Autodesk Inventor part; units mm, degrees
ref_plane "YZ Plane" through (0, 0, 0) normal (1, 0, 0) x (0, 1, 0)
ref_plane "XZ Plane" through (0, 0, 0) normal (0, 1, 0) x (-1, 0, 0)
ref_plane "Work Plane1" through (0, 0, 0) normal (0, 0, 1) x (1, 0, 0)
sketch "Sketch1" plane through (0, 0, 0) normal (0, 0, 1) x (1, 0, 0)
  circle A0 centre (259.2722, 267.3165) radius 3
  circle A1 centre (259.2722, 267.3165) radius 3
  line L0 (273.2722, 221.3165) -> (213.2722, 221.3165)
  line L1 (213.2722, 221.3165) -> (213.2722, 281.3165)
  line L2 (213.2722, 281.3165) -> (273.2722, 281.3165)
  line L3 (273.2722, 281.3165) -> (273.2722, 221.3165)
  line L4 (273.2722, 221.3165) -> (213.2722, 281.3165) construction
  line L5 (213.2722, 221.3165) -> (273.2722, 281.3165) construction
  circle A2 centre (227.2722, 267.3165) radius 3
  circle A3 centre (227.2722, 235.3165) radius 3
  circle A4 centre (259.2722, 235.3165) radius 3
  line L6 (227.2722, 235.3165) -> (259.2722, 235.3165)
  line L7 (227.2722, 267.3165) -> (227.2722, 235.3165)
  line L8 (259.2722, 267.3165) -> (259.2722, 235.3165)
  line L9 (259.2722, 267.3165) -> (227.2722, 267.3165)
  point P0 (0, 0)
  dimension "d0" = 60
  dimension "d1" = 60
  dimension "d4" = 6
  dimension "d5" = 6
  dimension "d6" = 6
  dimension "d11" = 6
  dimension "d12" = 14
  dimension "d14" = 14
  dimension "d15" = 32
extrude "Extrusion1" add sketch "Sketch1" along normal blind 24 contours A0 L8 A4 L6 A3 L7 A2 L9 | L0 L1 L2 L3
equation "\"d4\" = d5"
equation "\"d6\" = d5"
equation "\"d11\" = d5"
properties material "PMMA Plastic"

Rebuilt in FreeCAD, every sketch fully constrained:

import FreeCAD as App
import Part
import Sketcher


def add_polygon(sketch, points):
    """Adds a closed chain of lines whose ends are joined by coincident constraints."""
    first, n = sketch.GeometryCount, len(points)
    for a, b in zip(points, points[1:] + points[:1]):
        sketch.addGeometry(Part.LineSegment(App.Vector(*a, 0), App.Vector(*b, 0)), False)
    for i in range(n):
        sketch.addConstraint(Sketcher.Constraint("Coincident", first + i, 2, first + (i + 1) % n, 1))

doc = App.newDocument("Part")
body = doc.addObject("PartDesign::Body", "Body")

# Sketch on XY plane
sketch1 = doc.addObject("Sketcher::SketchObject", "Sketch")
body.addObject(sketch1)
sketch1.AttachmentSupport = (doc.XY_Plane, [""])
sketch1.MapMode = "FlatFace"
add_polygon(sketch1, [(213.3, 221.3), (273.3, 221.3), (273.3, 281.3), (213.3, 281.3)])  # lines 0-3
sketch1.addGeometry(Part.Circle(App.Vector(259.3, 267.3, 0), App.Vector(0, 0, 1), 3), False)  # 4
sketch1.addGeometry(Part.Circle(App.Vector(259.3, 235.3, 0), App.Vector(0, 0, 1), 3), False)  # 5
sketch1.addGeometry(Part.Circle(App.Vector(227.3, 235.3, 0), App.Vector(0, 0, 1), 3), False)  # 6
sketch1.addGeometry(Part.Circle(App.Vector(227.3, 267.3, 0), App.Vector(0, 0, 1), 3), False)  # 7
sketch1.addConstraint(Sketcher.Constraint("Horizontal", 0))
sketch1.addConstraint(Sketcher.Constraint("Vertical", 1))
sketch1.addConstraint(Sketcher.Constraint("Horizontal", 2))
sketch1.addConstraint(Sketcher.Constraint("Vertical", 3))
sketch1.addConstraint(Sketcher.Constraint("Equal", 4, 5))
sketch1.addConstraint(Sketcher.Constraint("Equal", 5, 6))
sketch1.addConstraint(Sketcher.Constraint("Equal", 6, 7))
sketch1.addConstraint(Sketcher.Constraint("Horizontal", 5, 3, 6, 3))
sketch1.addConstraint(Sketcher.Constraint("Horizontal", 4, 3, 7, 3))
sketch1.addConstraint(Sketcher.Constraint("Vertical", 4, 3, 5, 3))
sketch1.addConstraint(Sketcher.Constraint("Vertical", 6, 3, 7, 3))
sketch1.addConstraint(Sketcher.Constraint("Equal", 2, 1))
sketch1.addConstraint(Sketcher.Constraint("Diameter", 4, 6.0))
sketch1.addConstraint(Sketcher.Constraint("DistanceX", 0, 1, 0, 2, 60.0))
sketch1.addConstraint(Sketcher.Constraint("DistanceY", 5, 3, 4, 3, 32.0))
sketch1.addConstraint(Sketcher.Constraint("DistanceX", 6, 3, 5, 3, 32.0))
sketch1.addConstraint(Sketcher.Constraint("DistanceX", 5, 3, 0, 2, 14.0))
sketch1.addConstraint(Sketcher.Constraint("DistanceY", 0, 2, 5, 3, 14.0))
sketch1.addConstraint(Sketcher.Constraint("DistanceX", -1, 1, 4, 3, 259.2722))
sketch1.addConstraint(Sketcher.Constraint("DistanceY", -1, 1, 4, 3, 267.3165))
pad1 = doc.addObject("PartDesign::Pad", "Pad")
body.addObject(pad1)
pad1.Profile = sketch1
pad1.Length = 24

doc.recompute()
